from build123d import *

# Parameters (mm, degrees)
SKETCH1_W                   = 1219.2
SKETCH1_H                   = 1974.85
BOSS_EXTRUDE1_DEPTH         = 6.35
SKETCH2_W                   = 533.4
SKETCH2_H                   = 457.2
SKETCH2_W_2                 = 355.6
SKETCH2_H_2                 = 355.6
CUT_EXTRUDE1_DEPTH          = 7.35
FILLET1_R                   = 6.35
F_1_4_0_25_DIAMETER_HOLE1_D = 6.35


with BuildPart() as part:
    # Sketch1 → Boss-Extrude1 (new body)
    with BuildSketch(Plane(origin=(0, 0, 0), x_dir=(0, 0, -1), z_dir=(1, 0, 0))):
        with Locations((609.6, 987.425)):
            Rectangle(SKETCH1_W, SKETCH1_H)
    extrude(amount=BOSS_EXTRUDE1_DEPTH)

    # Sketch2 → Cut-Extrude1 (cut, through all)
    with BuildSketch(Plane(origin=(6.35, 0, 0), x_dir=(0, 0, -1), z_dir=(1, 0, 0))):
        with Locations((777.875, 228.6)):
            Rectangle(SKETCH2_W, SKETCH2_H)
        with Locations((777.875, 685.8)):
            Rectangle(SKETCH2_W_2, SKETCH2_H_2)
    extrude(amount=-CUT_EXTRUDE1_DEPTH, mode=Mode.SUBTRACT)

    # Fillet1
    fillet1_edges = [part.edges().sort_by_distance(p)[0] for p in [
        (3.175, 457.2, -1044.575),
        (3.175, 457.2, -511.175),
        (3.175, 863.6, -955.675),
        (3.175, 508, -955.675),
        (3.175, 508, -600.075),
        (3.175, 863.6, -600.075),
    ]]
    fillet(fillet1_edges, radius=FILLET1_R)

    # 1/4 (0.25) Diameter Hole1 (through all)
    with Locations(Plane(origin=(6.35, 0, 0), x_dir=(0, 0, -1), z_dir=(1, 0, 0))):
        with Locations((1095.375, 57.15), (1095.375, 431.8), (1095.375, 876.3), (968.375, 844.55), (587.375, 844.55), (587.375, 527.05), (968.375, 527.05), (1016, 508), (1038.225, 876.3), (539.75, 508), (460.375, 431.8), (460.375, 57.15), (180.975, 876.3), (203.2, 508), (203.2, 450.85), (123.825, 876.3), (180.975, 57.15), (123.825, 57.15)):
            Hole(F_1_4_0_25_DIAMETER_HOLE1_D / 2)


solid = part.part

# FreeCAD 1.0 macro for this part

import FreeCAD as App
import Part
import Sketcher
Q = App.Units.Quantity


def edges_at(feature, points):
    """Names of the edges that pass closest to the given points."""
    edges = feature.Shape.Edges
    near = lambda p: min(range(len(edges)), key=lambda i: edges[i].distToShape(Part.Vertex(*p))[0])
    return sorted({f"Edge{near(p) + 1}" for p in points})

doc = App.newDocument("Part")
body = doc.addObject("PartDesign::Body", "Body")

# Sketch on YZ plane
sketch1 = body.newObject("Sketcher::SketchObject", "Sketch")
sketch1.AttachmentSupport = (doc.getObject("YZ_Plane"), [""])
sketch1.MapMode = "FlatFace"
sketch1.addGeometry([
    Part.LineSegment(App.Vector(1975, 0, 0), App.Vector(0, 0, 0)),
    Part.LineSegment(App.Vector(0, 0, 0), App.Vector(0, -1219, 0)),
    Part.LineSegment(App.Vector(0, -1219, 0), App.Vector(1975, -1219, 0)),
    Part.LineSegment(App.Vector(1975, -1219, 0), App.Vector(1975, 0, 0)),
], False)
sketch1.addConstraint([
    Sketcher.Constraint("Coincident", 0, 2, 1, 1),
    Sketcher.Constraint("Coincident", 1, 2, 2, 1),
    Sketcher.Constraint("Coincident", 2, 2, 3, 1),
    Sketcher.Constraint("Coincident", 3, 2, 0, 1),
    Sketcher.Constraint("Horizontal", 0),
    Sketcher.Constraint("Vertical", 1),
    Sketcher.Constraint("Horizontal", 2),
    Sketcher.Constraint("Vertical", 3),
    Sketcher.Constraint("Coincident", 0, 2, -1, 1),
    Sketcher.Constraint("DistanceY", 1, 2, 1, 1, Q("48 in")),
    Sketcher.Constraint("DistanceX", 0, 2, 0, 1, Q("77.75 in")),
])
pad1 = body.newObject("PartDesign::Pad", "Pad")
pad1.Profile = sketch1
pad1.Length = Q("0.25 in")

# Sketch on YZ plane
sketch2 = body.newObject("Sketcher::SketchObject", "Sketch001")
sketch2.AttachmentSupport = (doc.getObject("YZ_Plane"), [""])
sketch2.MapMode = "FlatFace"
sketch2.AttachmentOffset = App.Placement(App.Vector(0, 0, 0.25 * 25.4), App.Rotation())
sketch2.addGeometry([
    Part.LineSegment(App.Vector(457, -511, 0), App.Vector(0, -511, 0)),  # 0
    Part.LineSegment(App.Vector(0, -511, 0), App.Vector(0, -1045, 0)),  # 1
    Part.LineSegment(App.Vector(0, -1045, 0), App.Vector(457, -1045, 0)),  # 2
    Part.LineSegment(App.Vector(457, -1045, 0), App.Vector(457, -511, 0)),  # 3
    Part.LineSegment(App.Vector(864, -600, 0), App.Vector(508, -600, 0)),  # 4
    Part.LineSegment(App.Vector(508, -600, 0), App.Vector(508, -956, 0)),  # 5
    Part.LineSegment(App.Vector(508, -956, 0), App.Vector(864, -956, 0)),  # 6
    Part.LineSegment(App.Vector(864, -956, 0), App.Vector(864, -600, 0)),  # 7
], False)
sketch2.addConstraint([
    Sketcher.Constraint("Coincident", 0, 2, 1, 1),
    Sketcher.Constraint("Coincident", 1, 2, 2, 1),
    Sketcher.Constraint("Coincident", 2, 2, 3, 1),
    Sketcher.Constraint("Coincident", 3, 2, 0, 1),
    Sketcher.Constraint("Coincident", 4, 2, 5, 1),
    Sketcher.Constraint("Coincident", 5, 2, 6, 1),
    Sketcher.Constraint("Coincident", 6, 2, 7, 1),
    Sketcher.Constraint("Coincident", 7, 2, 4, 1),
    Sketcher.Constraint("Horizontal", 0),
    Sketcher.Constraint("Vertical", 1),
    Sketcher.Constraint("Horizontal", 2),
    Sketcher.Constraint("Vertical", 3),
    Sketcher.Constraint("Horizontal", 4),
    Sketcher.Constraint("Vertical", 5),
    Sketcher.Constraint("Horizontal", 6),
    Sketcher.Constraint("Vertical", 7),
    Sketcher.Constraint("PointOnObject", 0, 2, -2),
    Sketcher.Constraint("Equal", 6, 5),
    Sketcher.Constraint("DistanceX", 0, 2, 0, 1, Q("18 in")),
    Sketcher.Constraint("DistanceX", 4, 2, 4, 1, Q("14 in")),
    Sketcher.Constraint("DistanceY", 1, 2, 1, 1, Q("21 in")),
    Sketcher.Constraint("DistanceX", -1, 1, 4, 2, Q("20 in")),
    Sketcher.Constraint("DistanceY", 4, 2, 3, 2, Q("3.5 in")),
    Sketcher.Constraint("DistanceY", 0, 2, -1, 1, Q("20.125 in")),
])
pocket1 = body.newObject("PartDesign::Pocket", "Pocket")
pocket1.Profile = sketch2
pocket1.Type = "ThroughAll"
doc.recompute()

fillet = body.newObject("PartDesign::Fillet", "Fillet")
fillet.Base = (pocket1, edges_at(pocket1, [
    (3.175, 457.2, -1044.575),
    (3.175, 457.2, -511.175),
    (3.175, 863.6, -955.675),
    (3.175, 508, -955.675),
    (3.175, 508, -600.075),
    (3.175, 863.6, -600.075),
]))
fillet.Radius = Q("0.25 in")

# Sketch on YZ plane
sketch3 = body.newObject("Sketcher::SketchObject", "Sketch002")
sketch3.AttachmentSupport = (doc.getObject("YZ_Plane"), [""])
sketch3.MapMode = "FlatFace"
sketch3.AttachmentOffset = App.Placement(App.Vector(0, 0, 0.25 * 25.4), App.Rotation())
sketch3.addGeometry([
    Part.Circle(App.Vector(57.1, -1095.4, 0), App.Vector(0, 0, 1), 3.2),  # 0
    Part.Circle(App.Vector(431.8, -1095.4, 0), App.Vector(0, 0, 1), 3.2),  # 1
    Part.Circle(App.Vector(876.3, -1095.4, 0), App.Vector(0, 0, 1), 3.2),  # 2
    Part.Circle(App.Vector(844.5, -968.4, 0), App.Vector(0, 0, 1), 3.2),  # 3
    Part.Circle(App.Vector(844.5, -587.4, 0), App.Vector(0, 0, 1), 3.2),  # 4
    Part.Circle(App.Vector(527, -587.4, 0), App.Vector(0, 0, 1), 3.2),  # 5
    Part.Circle(App.Vector(527, -968.4, 0), App.Vector(0, 0, 1), 3.2),  # 6
    Part.Circle(App.Vector(508, -1016, 0), App.Vector(0, 0, 1), 3.2),  # 7
    Part.Circle(App.Vector(876.3, -1038.2, 0), App.Vector(0, 0, 1), 3.2),  # 8
    Part.Circle(App.Vector(508, -539.8, 0), App.Vector(0, 0, 1), 3.2),  # 9
    Part.Circle(App.Vector(431.8, -460.4, 0), App.Vector(0, 0, 1), 3.2),  # 10
    Part.Circle(App.Vector(57.1, -460.4, 0), App.Vector(0, 0, 1), 3.2),  # 11
    Part.Circle(App.Vector(876.3, -181, 0), App.Vector(0, 0, 1), 3.2),  # 12
    Part.Circle(App.Vector(508, -203.2, 0), App.Vector(0, 0, 1), 3.2),  # 13
    Part.Circle(App.Vector(450.9, -203.2, 0), App.Vector(0, 0, 1), 3.2),  # 14
    Part.Circle(App.Vector(876.3, -123.8, 0), App.Vector(0, 0, 1), 3.2),  # 15
    Part.Circle(App.Vector(57.1, -181, 0), App.Vector(0, 0, 1), 3.2),  # 16
    Part.Circle(App.Vector(57.1, -123.8, 0), App.Vector(0, 0, 1), 3.2),  # 17
], False)
sketch3.addConstraint([
    Sketcher.Constraint("Equal", 0, 1),
    Sketcher.Constraint("Equal", 1, 2),
    Sketcher.Constraint("Equal", 2, 3),
    Sketcher.Constraint("Equal", 3, 4),
    Sketcher.Constraint("Equal", 4, 5),
    Sketcher.Constraint("Equal", 5, 6),
    Sketcher.Constraint("Equal", 6, 7),
    Sketcher.Constraint("Equal", 7, 8),
    Sketcher.Constraint("Equal", 8, 9),
    Sketcher.Constraint("Equal", 9, 10),
    Sketcher.Constraint("Equal", 10, 11),
    Sketcher.Constraint("Equal", 11, 12),
    Sketcher.Constraint("Equal", 12, 13),
    Sketcher.Constraint("Equal", 13, 14),
    Sketcher.Constraint("Equal", 14, 15),
    Sketcher.Constraint("Equal", 15, 16),
    Sketcher.Constraint("Equal", 16, 17),
    Sketcher.Constraint("Horizontal", 0, 3, 1, 3),
    Sketcher.Constraint("Horizontal", 1, 3, 2, 3),
    Sketcher.Constraint("Horizontal", 4, 3, 5, 3),
    Sketcher.Constraint("Horizontal", 3, 3, 6, 3),
    Sketcher.Constraint("Horizontal", 10, 3, 11, 3),
    Sketcher.Constraint("Horizontal", 13, 3, 14, 3),
    Sketcher.Constraint("Horizontal", 12, 3, 16, 3),
    Sketcher.Constraint("Horizontal", 15, 3, 17, 3),
    Sketcher.Constraint("Vertical", 3, 3, 4, 3),
    Sketcher.Constraint("Vertical", 5, 3, 6, 3),
    Sketcher.Constraint("Vertical", 2, 3, 8, 3),
    Sketcher.Constraint("Vertical", 7, 3, 9, 3),
    Sketcher.Constraint("Vertical", 1, 3, 10, 3),
    Sketcher.Constraint("Vertical", 0, 3, 11, 3),
    Sketcher.Constraint("Vertical", 8, 3, 12, 3),
    Sketcher.Constraint("Vertical", 9, 3, 13, 3),
    Sketcher.Constraint("Vertical", 12, 3, 15, 3),
    Sketcher.Constraint("Vertical", 11, 3, 16, 3),
    Sketcher.Constraint("Vertical", 16, 3, 17, 3),
    Sketcher.Constraint("Diameter", 0, Q("0.25 in")),
    Sketcher.Constraint("DistanceX", -1, 1, 1, 3, Q("17 in")),
    Sketcher.Constraint("DistanceX", -1, 1, 7, 3, Q("20 in")),
    Sketcher.Constraint("DistanceY", 7, 3, -1, 1, Q("40 in")),
    Sketcher.Constraint("DistanceY", 13, 3, -1, 1, Q("8 in")),
    Sketcher.Constraint("DistanceY", 2, 3, 3, 3, Q("5 in")),
    Sketcher.Constraint("DistanceX", 0, 3, 3, 3, Q("31 in")),
    Sketcher.Constraint("DistanceY", 3, 3, 4, 3, Q("15 in")),
    Sketcher.Constraint("DistanceY", 5, 3, 10, 3, Q("5 in")),
    Sketcher.Constraint("DistanceY", 4, 3, 12, 3, Q("16 in")),
    Sketcher.Constraint("DistanceX", 14, 3, 5, 3, Q("3 in")),
    Sketcher.Constraint("DistanceX", -1, 1, 2, 3, Q("34.5 in")),
    Sketcher.Constraint("DistanceX", 5, 3, 4, 3, Q("12.5 in")),
    Sketcher.Constraint("DistanceX", -1, 1, 0, 3, Q("2.25 in")),
    Sketcher.Constraint("DistanceY", 9, 3, -1, 1, Q("21.25 in")),
    Sketcher.Constraint("DistanceY", 2, 3, 8, 3, Q("2.25 in")),
    Sketcher.Constraint("DistanceY", 12, 3, 15, 3, Q("2.25 in")),
    Sketcher.Constraint("DistanceY", 0, 3, -1, 1, Q("43.125 in")),
])
doc.recompute()
hole = body.newObject("PartDesign::Hole", "Hole")
hole.Profile = sketch3
hole.ThreadType = "None"
hole.Diameter = Q("0.25 in")
hole.DepthType = "ThroughAll"

doc.recompute()
